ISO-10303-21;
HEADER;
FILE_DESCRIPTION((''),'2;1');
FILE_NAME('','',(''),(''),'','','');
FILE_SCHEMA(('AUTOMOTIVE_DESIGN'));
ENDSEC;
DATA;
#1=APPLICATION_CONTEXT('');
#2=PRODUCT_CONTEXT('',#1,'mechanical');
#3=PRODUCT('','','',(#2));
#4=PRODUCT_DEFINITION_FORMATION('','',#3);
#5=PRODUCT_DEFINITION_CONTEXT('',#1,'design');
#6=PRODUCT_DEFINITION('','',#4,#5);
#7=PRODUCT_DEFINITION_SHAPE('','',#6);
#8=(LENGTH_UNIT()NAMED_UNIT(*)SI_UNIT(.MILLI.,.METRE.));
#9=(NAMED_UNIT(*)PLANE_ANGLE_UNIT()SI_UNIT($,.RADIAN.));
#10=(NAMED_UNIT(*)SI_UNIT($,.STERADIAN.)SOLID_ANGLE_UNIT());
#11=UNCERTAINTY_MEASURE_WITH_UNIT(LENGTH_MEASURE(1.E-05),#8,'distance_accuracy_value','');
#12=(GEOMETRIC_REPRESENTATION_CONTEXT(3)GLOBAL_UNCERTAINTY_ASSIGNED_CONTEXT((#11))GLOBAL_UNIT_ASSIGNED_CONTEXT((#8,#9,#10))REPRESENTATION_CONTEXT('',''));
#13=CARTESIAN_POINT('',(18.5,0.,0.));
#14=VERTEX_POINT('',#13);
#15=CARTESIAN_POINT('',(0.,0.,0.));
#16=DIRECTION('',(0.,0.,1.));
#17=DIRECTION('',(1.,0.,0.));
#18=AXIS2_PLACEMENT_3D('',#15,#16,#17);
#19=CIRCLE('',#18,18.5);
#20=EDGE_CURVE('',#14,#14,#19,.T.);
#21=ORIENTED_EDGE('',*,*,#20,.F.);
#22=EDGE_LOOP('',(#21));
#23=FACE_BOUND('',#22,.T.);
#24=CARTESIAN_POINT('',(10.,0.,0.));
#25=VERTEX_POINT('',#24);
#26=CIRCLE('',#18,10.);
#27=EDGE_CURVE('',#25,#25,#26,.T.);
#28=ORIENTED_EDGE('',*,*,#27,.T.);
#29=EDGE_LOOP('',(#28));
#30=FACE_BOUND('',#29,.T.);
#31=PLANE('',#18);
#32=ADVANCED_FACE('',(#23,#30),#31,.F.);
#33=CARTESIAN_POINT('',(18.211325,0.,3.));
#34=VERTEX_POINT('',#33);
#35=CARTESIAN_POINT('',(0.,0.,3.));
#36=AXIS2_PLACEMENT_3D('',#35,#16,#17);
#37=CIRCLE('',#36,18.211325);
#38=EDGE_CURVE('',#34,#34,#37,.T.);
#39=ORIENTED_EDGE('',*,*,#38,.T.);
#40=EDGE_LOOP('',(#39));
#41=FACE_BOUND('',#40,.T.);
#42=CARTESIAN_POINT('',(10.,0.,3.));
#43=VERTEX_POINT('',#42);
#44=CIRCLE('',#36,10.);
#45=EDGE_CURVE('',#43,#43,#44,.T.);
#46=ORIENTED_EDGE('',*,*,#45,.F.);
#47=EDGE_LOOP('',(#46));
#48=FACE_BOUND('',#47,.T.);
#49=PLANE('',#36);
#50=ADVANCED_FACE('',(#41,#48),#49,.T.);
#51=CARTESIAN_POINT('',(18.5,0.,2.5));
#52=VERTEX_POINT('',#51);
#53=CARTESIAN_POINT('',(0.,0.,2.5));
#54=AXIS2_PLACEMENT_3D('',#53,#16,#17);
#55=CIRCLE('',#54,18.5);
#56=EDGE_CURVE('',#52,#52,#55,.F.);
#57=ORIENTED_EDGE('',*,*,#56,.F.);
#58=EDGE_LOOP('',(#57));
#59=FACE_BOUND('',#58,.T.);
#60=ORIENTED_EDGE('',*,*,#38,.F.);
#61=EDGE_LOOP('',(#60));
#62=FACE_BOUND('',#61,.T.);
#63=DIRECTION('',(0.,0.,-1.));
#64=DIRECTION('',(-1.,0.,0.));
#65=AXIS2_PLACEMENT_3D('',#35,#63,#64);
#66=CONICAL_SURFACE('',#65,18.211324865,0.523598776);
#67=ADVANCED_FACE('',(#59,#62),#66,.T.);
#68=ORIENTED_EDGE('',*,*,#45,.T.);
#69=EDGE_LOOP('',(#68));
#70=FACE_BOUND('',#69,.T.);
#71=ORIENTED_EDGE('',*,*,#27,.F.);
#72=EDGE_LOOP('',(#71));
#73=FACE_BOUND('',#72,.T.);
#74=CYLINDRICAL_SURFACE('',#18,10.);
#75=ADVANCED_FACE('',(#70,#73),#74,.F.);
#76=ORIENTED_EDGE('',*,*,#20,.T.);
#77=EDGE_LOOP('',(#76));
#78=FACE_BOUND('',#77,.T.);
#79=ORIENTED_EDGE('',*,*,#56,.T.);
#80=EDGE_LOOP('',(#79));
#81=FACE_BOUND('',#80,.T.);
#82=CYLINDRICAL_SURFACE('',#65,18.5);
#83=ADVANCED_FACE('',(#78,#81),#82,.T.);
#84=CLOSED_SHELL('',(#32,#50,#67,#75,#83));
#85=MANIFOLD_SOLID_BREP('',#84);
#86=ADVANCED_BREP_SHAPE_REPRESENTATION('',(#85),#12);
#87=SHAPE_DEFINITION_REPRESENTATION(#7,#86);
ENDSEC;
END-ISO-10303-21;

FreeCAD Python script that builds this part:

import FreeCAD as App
import Part
import Sketcher
from FreeCAD import Vector
Q = App.Units.Quantity


def edges_at(feature, points):
    """Names of the edges that pass closest to the given points."""
    edges = feature.Shape.Edges
    near = lambda p: min(range(len(edges)), key=lambda i: edges[i].distToShape(Part.Vertex(*p))[0])
    return sorted({f"Edge{near(p) + 1}" for p in points})

doc = App.newDocument("Part")
params = doc.addObject("Spreadsheet::Sheet", "Params")
for row, (alias, value) in enumerate([
    ("sketch1_diameter", "37 mm"),
    ("pad1_length", "3 mm"),
    ("sketch2_diameter", "20 mm"),
    ("chamfer_size", "0.5 mm"),
    ("chamfer_size2", "0.288675 mm"),
], start=1):
    params.set(f"A{row}", alias)
    params.set(f"B{row}", "=" + value)
    params.setAlias(f"B{row}", alias)

body = doc.addObject("PartDesign::Body", "Body")

# Sketch on XY plane
sketch1 = body.newObject("Sketcher::SketchObject", "Sketch")
sketch1.AttachmentSupport = (doc.getObject("XY_Plane"), [""])
sketch1.MapMode = "FlatFace"
sketch1.addGeometry(Part.Circle(Vector(0, 0, 0), Vector(0, 0, 1), 18), False)
sketch1.addConstraint(Sketcher.Constraint("Coincident", 0, 3, -1, 1))
sketch1.addConstraint(Sketcher.Constraint("Diameter", 0, Q("37 mm")))
sketch1.setExpression("Constraints[1]", "Params.sketch1_diameter")
pad1 = body.newObject("PartDesign::Pad", "Pad")
pad1.Profile = sketch1
pad1.setExpression("Length", "Params.pad1_length")

# Sketch on XY plane
sketch2 = body.newObject("Sketcher::SketchObject", "Sketch001")
sketch2.AttachmentSupport = (doc.getObject("XY_Plane"), [""])
sketch2.MapMode = "FlatFace"
sketch2.AttachmentOffset = App.Placement(Vector(0, 0, 3), App.Rotation())
sketch2.addGeometry(Part.Circle(Vector(0, 0, 0), Vector(0, 0, 1), 10), False)
sketch2.addConstraint(Sketcher.Constraint("Coincident", 0, 3, -1, 1))
sketch2.addConstraint(Sketcher.Constraint("Diameter", 0, Q("20 mm")))
sketch2.setExpression("Constraints[1]", "Params.sketch2_diameter")
pocket1 = body.newObject("PartDesign::Pocket", "Pocket")
pocket1.Profile = sketch2
pocket1.Type = "ThroughAll"
doc.recompute()

chamfer = body.newObject("PartDesign::Chamfer", "Chamfer")
chamfer.Base = (pocket1, edges_at(pocket1, [(-18.5, 0, 3)]))
chamfer.ChamferType = "Two distances"
chamfer.setExpression("Size", "Params.chamfer_size")
chamfer.setExpression("Size2", "Params.chamfer_size2")

doc.recompute()
